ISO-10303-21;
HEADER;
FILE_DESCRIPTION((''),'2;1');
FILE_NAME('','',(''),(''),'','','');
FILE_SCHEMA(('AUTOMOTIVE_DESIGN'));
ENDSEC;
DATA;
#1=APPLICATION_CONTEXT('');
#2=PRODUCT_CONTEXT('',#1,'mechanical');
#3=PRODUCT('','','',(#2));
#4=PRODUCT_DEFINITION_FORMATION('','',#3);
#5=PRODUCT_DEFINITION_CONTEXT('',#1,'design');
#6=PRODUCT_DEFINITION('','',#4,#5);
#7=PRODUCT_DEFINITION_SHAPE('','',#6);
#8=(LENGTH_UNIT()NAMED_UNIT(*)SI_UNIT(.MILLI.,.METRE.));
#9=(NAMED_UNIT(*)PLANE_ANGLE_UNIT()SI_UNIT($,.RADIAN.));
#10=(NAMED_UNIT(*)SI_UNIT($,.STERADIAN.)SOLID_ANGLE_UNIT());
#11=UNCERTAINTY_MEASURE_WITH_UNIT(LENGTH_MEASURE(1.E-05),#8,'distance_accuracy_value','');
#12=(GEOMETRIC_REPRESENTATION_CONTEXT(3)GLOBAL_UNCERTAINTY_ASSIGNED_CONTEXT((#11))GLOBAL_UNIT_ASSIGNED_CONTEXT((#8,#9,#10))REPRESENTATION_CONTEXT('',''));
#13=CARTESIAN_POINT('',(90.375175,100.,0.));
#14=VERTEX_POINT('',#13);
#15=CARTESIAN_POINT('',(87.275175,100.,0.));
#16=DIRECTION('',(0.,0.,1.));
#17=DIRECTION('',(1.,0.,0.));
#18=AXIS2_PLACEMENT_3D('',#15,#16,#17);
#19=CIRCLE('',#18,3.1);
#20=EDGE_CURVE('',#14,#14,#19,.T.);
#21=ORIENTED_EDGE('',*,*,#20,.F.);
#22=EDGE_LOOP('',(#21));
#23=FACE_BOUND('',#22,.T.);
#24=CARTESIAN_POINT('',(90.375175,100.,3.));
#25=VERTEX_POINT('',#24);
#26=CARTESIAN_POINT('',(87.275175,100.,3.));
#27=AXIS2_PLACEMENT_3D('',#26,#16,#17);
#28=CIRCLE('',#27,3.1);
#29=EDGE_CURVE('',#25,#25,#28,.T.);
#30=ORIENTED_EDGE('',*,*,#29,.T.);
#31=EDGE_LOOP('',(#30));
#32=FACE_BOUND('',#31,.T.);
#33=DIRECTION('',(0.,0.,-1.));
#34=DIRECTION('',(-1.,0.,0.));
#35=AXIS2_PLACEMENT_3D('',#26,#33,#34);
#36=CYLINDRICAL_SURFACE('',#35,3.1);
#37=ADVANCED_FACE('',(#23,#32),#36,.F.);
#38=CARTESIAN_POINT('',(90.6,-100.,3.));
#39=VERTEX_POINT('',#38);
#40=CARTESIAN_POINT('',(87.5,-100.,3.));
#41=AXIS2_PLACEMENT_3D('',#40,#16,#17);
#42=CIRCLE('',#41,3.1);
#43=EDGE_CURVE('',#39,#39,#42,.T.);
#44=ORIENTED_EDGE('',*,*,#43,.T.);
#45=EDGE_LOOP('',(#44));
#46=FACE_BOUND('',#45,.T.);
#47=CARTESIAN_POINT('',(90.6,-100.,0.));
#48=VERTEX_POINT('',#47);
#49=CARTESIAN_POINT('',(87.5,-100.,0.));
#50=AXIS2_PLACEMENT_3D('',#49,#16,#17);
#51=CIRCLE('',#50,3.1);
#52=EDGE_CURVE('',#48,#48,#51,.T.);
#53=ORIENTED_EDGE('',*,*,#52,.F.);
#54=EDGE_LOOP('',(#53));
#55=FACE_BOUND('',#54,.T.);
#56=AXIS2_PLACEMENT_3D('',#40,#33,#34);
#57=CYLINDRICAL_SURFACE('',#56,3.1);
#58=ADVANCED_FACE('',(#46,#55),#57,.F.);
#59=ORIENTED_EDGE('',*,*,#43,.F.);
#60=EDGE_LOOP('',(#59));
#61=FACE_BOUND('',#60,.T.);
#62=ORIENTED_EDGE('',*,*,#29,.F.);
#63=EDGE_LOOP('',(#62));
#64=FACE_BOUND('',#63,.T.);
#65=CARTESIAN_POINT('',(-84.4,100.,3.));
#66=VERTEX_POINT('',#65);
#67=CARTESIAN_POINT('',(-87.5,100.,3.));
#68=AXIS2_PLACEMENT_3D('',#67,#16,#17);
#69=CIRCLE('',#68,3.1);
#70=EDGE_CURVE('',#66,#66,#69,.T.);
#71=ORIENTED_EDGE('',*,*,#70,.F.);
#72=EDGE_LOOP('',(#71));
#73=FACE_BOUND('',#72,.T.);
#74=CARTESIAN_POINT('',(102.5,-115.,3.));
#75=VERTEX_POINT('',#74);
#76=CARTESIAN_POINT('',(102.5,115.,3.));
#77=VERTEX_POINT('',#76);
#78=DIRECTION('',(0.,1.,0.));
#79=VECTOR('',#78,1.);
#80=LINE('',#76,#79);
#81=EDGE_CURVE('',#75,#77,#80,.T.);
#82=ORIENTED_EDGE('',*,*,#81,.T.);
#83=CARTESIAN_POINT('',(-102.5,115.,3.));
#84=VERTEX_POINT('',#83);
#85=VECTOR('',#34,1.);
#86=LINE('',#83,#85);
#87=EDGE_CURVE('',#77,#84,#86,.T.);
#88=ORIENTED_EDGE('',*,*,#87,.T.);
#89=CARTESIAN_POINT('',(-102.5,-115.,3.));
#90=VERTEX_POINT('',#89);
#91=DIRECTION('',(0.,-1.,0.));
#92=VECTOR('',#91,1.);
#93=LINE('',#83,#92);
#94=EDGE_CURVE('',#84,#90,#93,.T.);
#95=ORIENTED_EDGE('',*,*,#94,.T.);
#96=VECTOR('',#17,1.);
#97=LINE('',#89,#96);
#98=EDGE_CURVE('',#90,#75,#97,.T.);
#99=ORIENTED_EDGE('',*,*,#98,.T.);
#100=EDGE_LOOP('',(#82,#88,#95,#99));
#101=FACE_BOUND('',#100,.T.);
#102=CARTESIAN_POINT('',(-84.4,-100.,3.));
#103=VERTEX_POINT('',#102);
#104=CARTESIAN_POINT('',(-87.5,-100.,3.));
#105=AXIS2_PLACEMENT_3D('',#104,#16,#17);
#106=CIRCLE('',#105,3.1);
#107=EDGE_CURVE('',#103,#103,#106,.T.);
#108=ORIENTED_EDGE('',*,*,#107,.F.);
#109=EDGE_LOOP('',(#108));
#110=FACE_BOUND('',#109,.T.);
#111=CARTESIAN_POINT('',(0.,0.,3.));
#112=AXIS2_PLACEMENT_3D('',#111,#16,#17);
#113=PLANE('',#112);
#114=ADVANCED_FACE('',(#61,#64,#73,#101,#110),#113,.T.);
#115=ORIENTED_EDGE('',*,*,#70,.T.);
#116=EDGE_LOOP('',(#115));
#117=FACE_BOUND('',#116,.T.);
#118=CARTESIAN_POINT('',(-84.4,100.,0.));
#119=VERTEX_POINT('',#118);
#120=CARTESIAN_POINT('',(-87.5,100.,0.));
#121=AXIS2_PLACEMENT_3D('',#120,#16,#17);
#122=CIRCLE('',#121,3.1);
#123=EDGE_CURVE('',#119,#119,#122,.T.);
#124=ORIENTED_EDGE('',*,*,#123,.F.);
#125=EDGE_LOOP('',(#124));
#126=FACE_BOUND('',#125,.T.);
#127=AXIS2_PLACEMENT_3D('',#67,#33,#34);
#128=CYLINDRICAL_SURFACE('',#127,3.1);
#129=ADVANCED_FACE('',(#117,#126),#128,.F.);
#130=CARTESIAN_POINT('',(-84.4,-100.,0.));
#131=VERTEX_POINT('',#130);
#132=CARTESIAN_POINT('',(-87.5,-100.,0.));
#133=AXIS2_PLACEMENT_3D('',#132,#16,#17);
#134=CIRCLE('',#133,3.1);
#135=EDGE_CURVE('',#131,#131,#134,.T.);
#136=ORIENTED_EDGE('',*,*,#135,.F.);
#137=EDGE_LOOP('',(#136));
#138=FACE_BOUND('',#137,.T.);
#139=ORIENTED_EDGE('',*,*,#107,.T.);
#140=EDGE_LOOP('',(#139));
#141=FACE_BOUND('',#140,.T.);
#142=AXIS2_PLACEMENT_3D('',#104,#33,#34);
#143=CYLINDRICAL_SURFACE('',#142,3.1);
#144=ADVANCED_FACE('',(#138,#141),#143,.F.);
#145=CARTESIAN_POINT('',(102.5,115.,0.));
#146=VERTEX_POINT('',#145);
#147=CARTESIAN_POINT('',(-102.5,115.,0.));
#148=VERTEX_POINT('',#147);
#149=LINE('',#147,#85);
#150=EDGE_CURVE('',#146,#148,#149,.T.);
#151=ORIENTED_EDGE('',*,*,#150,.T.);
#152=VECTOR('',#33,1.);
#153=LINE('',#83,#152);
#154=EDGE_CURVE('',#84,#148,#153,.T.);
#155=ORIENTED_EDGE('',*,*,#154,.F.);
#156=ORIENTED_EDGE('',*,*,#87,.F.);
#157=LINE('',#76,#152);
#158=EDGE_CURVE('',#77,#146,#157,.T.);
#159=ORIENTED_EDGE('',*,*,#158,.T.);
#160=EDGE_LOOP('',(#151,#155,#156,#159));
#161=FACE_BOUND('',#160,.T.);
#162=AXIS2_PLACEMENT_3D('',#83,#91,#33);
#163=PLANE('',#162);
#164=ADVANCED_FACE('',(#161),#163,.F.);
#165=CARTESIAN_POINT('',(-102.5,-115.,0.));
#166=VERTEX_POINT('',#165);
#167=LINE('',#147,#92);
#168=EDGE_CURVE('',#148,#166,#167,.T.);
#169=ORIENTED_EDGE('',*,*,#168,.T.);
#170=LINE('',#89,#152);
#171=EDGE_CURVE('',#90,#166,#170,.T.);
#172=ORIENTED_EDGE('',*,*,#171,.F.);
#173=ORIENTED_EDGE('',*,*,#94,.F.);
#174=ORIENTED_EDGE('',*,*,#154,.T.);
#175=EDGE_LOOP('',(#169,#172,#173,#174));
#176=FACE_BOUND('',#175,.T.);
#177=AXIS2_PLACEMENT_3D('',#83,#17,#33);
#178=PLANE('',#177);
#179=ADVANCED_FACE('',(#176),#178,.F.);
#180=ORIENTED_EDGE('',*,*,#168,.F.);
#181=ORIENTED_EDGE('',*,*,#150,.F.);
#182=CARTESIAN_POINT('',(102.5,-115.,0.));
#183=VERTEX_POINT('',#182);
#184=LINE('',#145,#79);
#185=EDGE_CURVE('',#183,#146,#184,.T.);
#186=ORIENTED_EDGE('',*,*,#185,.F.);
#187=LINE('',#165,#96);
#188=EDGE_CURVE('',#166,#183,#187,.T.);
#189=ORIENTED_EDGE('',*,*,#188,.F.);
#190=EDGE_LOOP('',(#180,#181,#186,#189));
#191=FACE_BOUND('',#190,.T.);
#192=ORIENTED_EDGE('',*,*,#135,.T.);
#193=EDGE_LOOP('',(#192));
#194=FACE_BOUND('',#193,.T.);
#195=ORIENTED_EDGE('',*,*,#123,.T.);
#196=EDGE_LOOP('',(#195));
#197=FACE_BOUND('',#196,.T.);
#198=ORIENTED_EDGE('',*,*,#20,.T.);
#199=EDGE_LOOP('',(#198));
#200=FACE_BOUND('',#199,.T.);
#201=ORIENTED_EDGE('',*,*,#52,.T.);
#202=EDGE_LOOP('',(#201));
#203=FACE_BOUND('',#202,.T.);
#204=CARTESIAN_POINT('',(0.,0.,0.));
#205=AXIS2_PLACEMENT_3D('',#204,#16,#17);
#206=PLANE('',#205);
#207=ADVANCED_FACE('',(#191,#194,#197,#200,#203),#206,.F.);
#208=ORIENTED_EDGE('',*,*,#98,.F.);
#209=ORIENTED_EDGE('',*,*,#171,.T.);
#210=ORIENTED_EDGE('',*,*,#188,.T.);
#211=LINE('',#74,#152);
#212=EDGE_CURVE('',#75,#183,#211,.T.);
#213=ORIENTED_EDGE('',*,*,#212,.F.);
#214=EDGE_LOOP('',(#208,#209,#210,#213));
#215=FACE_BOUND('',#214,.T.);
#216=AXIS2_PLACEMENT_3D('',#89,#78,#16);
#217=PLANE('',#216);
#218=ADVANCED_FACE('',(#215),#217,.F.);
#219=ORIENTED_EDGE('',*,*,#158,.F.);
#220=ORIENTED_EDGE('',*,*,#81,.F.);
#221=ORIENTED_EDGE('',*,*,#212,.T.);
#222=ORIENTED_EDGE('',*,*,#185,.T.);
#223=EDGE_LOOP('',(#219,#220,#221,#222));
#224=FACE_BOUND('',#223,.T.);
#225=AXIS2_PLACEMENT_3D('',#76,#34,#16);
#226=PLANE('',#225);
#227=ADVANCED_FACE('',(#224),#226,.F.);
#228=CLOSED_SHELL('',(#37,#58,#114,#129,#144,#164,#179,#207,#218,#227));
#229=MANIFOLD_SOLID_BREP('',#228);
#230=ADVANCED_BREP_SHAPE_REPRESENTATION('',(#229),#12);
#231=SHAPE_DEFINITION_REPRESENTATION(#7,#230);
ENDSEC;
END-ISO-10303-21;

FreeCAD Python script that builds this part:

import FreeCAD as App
import Part
import Sketcher

V = App.Vector

doc = App.newDocument("Part")
body = doc.addObject("PartDesign::Body", "Body")

sketch1 = body.newObject("Sketcher::SketchObject", "Sketch")
sketch1.AttachmentSupport = (doc.getObject("XY_Plane"), [""])
sketch1.MapMode = "FlatFace"
sketch1.addGeometry(Part.LineSegment(V(-102.5, 115, 0), V(-102.5, -115, 0)), False)
sketch1.addGeometry(Part.LineSegment(V(-102.5, -115, 0), V(102.5, -115, 0)), False)
sketch1.addGeometry(Part.LineSegment(V(102.5, -115, 0), V(102.5, 115, 0)), False)
sketch1.addGeometry(Part.LineSegment(V(102.5, 115, 0), V(-102.5, 115, 0)), False)
sketch1.addGeometry(Part.Circle(V(-87.5, -100, 0), V(0, 0, 1), 3.1), False)
sketch1.addGeometry(Part.Circle(V(87.5, -100, 0), V(0, 0, 1), 3.1), False)
sketch1.addGeometry(Part.Circle(V(-87.5, 100, 0), V(0, 0, 1), 3.1), False)
sketch1.addGeometry(Part.Circle(V(87.3, 100, 0), V(0, 0, 1), 3.1), False)
sketch1.addConstraint(Sketcher.Constraint("Coincident", 0, 2, 1, 1))
sketch1.addConstraint(Sketcher.Constraint("Coincident", 1, 2, 2, 1))
sketch1.addConstraint(Sketcher.Constraint("Coincident", 2, 2, 3, 1))
sketch1.addConstraint(Sketcher.Constraint("Coincident", 3, 2, 0, 1))
sketch1.addConstraint(Sketcher.Constraint("Vertical", 0))
sketch1.addConstraint(Sketcher.Constraint("Horizontal", 1))
sketch1.addConstraint(Sketcher.Constraint("Vertical", 2))
sketch1.addConstraint(Sketcher.Constraint("Horizontal", 3))
sketch1.addConstraint(Sketcher.Constraint("Equal", 4, 5))
sketch1.addConstraint(Sketcher.Constraint("Equal", 5, 6))
sketch1.addConstraint(Sketcher.Constraint("Equal", 6, 7))
sketch1.addConstraint(Sketcher.Constraint("Symmetric", 5, 3, 6, 3, -1, 1))
sketch1.addConstraint(Sketcher.Constraint("Symmetric", 0, 2, 2, 2, -1, 1))
sketch1.addConstraint(Sketcher.Constraint("Symmetric", 4, 3, 5, 3, -2))
sketch1.addConstraint(Sketcher.Constraint("Horizontal", 6, 3, 7, 3))
sketch1.addConstraint(Sketcher.Constraint("Diameter", 4, 6.2))
sketch1.addConstraint(Sketcher.Constraint("DistanceX", 1, 1, 1, 2, 205.0))
sketch1.addConstraint(Sketcher.Constraint("DistanceY", 0, 2, 0, 1, 230.0))
sketch1.addConstraint(Sketcher.Constraint("DistanceY", 4, 3, -1, 1, 100.0))
sketch1.addConstraint(Sketcher.Constraint("DistanceX", 4, 3, 5, 3, 175.0))
sketch1.addConstraint(Sketcher.Constraint("DistanceX", -1, 1, 7, 3, 87.275175))
pad1 = body.newObject("PartDesign::Pad", "Pad")
pad1.Profile = sketch1
pad1.Length = 3

doc.recompute()
